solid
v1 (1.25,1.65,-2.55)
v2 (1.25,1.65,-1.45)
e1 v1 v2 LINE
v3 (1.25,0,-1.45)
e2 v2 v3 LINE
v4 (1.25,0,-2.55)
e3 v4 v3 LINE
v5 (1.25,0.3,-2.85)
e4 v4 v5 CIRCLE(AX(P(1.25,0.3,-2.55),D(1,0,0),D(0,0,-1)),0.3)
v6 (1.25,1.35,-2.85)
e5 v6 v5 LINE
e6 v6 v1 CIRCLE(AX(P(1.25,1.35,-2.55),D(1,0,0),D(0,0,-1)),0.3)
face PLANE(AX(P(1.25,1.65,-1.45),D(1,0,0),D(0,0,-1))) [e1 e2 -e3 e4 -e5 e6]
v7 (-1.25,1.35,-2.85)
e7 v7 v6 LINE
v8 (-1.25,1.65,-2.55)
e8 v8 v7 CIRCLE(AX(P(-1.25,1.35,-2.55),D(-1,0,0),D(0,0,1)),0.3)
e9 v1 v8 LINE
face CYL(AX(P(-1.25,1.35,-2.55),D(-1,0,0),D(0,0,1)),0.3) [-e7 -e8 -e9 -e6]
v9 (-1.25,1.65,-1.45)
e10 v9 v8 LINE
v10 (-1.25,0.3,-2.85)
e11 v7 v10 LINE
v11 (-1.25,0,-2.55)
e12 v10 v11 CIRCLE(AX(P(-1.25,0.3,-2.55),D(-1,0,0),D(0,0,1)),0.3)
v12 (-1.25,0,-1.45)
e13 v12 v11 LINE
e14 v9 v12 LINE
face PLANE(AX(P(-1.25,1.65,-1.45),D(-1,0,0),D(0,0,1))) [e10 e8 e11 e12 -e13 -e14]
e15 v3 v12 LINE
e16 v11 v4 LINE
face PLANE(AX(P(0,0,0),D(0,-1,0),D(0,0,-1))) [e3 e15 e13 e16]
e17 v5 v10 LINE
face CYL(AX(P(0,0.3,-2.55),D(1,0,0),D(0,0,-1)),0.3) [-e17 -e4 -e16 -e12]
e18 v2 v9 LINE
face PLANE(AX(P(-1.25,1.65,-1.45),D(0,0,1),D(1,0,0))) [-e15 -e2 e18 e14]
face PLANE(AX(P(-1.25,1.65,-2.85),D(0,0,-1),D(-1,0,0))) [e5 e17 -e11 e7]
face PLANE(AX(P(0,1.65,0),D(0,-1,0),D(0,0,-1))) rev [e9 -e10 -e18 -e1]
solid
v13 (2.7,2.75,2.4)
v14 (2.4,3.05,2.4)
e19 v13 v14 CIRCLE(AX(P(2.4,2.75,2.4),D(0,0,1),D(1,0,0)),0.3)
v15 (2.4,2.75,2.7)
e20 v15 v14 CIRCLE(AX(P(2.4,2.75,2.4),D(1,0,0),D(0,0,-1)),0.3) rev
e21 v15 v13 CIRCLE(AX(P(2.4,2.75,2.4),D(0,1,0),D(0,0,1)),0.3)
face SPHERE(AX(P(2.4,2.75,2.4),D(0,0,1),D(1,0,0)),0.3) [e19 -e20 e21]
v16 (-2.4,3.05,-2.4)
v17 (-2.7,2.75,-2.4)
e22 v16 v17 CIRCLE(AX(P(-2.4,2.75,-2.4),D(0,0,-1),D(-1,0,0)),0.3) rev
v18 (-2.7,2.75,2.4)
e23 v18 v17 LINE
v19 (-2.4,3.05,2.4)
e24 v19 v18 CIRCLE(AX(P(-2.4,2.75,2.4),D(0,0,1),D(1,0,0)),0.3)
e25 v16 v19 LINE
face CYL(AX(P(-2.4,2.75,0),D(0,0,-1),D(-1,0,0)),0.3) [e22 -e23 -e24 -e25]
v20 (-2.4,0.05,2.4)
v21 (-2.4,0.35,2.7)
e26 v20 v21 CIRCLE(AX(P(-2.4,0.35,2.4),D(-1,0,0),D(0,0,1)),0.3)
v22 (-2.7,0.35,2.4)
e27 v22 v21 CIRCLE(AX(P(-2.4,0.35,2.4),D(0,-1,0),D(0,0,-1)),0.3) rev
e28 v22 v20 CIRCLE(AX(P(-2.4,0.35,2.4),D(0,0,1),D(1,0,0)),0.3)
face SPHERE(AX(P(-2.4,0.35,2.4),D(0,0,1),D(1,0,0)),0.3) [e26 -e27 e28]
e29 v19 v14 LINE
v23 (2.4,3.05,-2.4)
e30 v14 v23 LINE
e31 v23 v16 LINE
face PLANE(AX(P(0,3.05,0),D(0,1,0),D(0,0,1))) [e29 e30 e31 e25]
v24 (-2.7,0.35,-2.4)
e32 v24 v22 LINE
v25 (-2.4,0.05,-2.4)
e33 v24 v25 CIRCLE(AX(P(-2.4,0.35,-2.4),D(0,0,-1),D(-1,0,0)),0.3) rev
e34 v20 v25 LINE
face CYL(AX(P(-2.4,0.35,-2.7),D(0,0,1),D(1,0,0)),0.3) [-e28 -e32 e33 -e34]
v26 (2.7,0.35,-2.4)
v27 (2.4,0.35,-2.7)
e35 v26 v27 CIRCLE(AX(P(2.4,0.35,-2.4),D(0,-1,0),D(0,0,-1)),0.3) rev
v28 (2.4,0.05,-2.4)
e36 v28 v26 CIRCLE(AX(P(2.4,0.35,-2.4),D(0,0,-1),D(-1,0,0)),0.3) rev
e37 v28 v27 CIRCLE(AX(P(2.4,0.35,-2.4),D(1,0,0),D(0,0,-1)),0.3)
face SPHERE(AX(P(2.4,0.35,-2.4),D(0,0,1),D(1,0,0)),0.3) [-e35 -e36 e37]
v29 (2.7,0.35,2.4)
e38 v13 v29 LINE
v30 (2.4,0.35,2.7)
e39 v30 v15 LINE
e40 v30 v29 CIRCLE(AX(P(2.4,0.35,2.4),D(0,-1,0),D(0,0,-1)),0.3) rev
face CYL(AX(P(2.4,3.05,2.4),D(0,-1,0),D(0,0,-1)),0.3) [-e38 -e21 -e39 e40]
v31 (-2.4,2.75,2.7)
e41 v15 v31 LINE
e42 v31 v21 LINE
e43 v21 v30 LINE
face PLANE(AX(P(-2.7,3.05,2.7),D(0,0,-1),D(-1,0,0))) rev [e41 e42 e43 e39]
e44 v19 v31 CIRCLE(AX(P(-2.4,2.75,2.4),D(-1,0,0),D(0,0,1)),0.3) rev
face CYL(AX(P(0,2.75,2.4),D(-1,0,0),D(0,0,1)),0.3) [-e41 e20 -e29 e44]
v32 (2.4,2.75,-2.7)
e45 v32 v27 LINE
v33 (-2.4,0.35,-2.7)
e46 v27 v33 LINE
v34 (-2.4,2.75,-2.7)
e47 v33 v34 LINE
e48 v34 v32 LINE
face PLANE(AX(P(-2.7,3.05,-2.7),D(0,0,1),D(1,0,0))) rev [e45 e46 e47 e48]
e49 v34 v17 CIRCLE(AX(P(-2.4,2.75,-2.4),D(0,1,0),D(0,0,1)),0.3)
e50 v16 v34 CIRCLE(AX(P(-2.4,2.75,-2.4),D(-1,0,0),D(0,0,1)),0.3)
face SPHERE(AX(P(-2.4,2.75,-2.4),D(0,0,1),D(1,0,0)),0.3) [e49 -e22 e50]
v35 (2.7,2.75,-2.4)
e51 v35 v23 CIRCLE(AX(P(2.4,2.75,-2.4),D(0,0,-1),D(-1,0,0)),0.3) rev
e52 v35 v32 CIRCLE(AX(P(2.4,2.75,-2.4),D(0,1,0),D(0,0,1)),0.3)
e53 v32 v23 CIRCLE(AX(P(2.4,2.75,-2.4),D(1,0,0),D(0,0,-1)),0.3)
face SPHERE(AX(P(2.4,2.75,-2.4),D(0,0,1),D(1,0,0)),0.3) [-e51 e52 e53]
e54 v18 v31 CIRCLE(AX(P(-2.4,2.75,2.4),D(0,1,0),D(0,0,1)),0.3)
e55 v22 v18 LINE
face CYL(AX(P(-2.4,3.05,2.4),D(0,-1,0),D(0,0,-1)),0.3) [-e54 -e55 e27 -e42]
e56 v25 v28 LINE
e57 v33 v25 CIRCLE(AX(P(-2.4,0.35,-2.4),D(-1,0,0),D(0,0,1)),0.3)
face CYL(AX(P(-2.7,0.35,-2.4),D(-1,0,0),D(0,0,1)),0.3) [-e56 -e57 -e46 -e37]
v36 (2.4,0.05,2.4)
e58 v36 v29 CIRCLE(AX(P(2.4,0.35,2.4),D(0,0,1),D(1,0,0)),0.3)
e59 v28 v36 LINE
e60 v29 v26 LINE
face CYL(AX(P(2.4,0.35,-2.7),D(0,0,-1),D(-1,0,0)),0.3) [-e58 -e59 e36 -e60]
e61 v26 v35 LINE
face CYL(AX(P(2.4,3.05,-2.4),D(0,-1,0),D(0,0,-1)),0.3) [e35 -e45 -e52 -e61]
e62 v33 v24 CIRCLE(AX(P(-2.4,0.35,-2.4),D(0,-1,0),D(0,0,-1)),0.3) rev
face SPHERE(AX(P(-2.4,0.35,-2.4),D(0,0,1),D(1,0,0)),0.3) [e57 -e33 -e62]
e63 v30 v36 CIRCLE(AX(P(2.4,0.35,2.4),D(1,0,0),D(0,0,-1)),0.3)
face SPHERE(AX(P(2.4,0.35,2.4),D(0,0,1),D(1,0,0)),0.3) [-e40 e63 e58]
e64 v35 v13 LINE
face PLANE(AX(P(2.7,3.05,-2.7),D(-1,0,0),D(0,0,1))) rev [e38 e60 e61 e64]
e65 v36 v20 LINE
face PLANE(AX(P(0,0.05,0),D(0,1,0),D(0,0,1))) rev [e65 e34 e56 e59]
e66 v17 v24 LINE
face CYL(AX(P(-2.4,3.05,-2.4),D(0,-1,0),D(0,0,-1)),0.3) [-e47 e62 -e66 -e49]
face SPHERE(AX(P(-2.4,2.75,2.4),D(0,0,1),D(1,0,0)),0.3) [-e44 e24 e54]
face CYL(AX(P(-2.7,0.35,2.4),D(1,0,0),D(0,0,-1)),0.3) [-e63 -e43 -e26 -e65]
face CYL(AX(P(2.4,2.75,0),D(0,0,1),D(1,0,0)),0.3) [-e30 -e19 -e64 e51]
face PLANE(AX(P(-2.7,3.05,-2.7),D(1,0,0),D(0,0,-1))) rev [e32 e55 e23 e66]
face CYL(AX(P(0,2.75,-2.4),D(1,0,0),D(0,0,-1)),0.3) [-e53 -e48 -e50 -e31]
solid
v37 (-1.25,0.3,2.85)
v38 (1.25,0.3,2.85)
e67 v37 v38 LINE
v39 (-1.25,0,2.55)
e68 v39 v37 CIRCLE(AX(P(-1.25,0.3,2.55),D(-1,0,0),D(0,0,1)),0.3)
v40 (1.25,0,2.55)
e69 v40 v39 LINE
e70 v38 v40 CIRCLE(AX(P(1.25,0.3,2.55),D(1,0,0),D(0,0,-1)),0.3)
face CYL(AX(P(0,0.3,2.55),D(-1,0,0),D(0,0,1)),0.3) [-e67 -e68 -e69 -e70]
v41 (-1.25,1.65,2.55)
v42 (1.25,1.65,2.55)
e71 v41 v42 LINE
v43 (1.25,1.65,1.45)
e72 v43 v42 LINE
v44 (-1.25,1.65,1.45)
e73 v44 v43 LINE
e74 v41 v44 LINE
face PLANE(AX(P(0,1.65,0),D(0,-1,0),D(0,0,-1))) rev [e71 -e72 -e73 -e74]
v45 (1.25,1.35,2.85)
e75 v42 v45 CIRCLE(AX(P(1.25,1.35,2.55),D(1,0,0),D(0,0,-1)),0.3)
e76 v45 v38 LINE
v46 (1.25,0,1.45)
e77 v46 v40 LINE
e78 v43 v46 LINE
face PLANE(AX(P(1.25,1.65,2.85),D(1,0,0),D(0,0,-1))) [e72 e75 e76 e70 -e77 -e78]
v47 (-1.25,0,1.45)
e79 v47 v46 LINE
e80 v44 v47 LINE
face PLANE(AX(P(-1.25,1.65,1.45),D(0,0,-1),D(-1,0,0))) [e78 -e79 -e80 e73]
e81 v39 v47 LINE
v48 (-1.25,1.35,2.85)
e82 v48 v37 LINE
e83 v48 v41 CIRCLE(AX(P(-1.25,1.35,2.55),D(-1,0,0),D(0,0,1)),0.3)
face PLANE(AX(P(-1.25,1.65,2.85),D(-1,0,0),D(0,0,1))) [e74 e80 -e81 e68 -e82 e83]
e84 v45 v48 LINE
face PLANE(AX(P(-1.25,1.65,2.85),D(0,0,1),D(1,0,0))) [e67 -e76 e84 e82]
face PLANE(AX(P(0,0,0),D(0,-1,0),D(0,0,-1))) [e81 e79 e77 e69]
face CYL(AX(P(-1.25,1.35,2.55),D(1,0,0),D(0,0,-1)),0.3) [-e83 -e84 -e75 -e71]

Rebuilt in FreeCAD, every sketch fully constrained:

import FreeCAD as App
import Part
import Sketcher
from FreeCAD import Vector


def edges_at(feature, points):
    """Names of the edges that pass closest to the given points."""
    edges = feature.Shape.Edges
    near = lambda p: min(range(len(edges)), key=lambda i: edges[i].distToShape(Part.Vertex(*p))[0])
    return sorted({f"Edge{near(p) + 1}" for p in points})


def add_polygon(sketch, points):
    """Adds a closed chain of lines whose ends are joined by coincident constraints."""
    first, n = sketch.GeometryCount, len(points)
    for a, b in zip(points, points[1:] + points[:1]):
        sketch.addGeometry(Part.LineSegment(App.Vector(*a, 0), App.Vector(*b, 0)), False)
    for i in range(n):
        sketch.addConstraint(Sketcher.Constraint("Coincident", first + i, 2, first + (i + 1) % n, 1))

doc = App.newDocument("Part")
params = doc.addObject("Spreadsheet::Sheet", "Params")
for row, (alias, value) in enumerate([
    ("sketch1_width", "5.4 mm"),
    ("pad1_length", "3 mm"),
    ("fillet_radius", "0.3 mm"),
    ("sketch2_width", "2.5 mm"),
    ("sketch2_height", "1.4 mm"),
    ("pad2_length", "0.05 mm"),
    ("pad2_length2", "1.6 mm"),
    ("fillet2_radius", "0.3 mm"),
    ("sketch3_width", "2.5 mm"),
    ("sketch3_height", "1.4 mm"),
    ("pad3_length", "0.05 mm"),
    ("pad3_length2", "1.6 mm"),
    ("fillet3_radius", "0.3 mm"),
], start=1):
    params.set(f"A{row}", alias)
    params.set(f"B{row}", "=" + value)
    params.setAlias(f"B{row}", alias)

body = doc.addObject("PartDesign::Body", "Body")

# Sketch on XZ plane
sketch1 = body.newObject("Sketcher::SketchObject", "Sketch")
sketch1.AttachmentSupport = (doc.getObject("XZ_Plane"), [""])
sketch1.MapMode = "FlatFace"
sketch1.AttachmentOffset = App.Placement(Vector(0, 0, -0.05), App.Rotation())
add_polygon(sketch1, [(-2.7, -2.7), (-2.7, 2.7), (2.7, 2.7), (2.7, -2.7)])  # lines 0-3
sketch1.addConstraint([
    Sketcher.Constraint("Vertical", 0),
    Sketcher.Constraint("Horizontal", 1),
    Sketcher.Constraint("Vertical", 2),
    Sketcher.Constraint("Horizontal", 3),
    Sketcher.Constraint("Symmetric", 0, 2, 2, 2, -1, 1),
    Sketcher.Constraint("Equal", 3, 0),
    Sketcher.Constraint("DistanceX", 1, 1, 1, 2, 5.4),
])
sketch1.setExpression("Constraints[10]", "Params.sketch1_width")
pad1 = body.newObject("PartDesign::Pad", "Pad")
pad1.Profile = sketch1
pad1.setExpression("Length", "Params.pad1_length")
pad1.Reversed = True
doc.recompute()

fillet = body.newObject("PartDesign::Fillet", "Fillet")
fillet.Base = (pad1, ["Edge1"])
fillet.UseAllEdges = True
fillet.setExpression("Radius", "Params.fillet_radius")
body2 = doc.addObject("PartDesign::Body", "Body001")

# Sketch on XZ plane
sketch2 = body2.newObject("Sketcher::SketchObject", "Sketch001")
sketch2.AttachmentSupport = (doc.getObject("XZ_Plane001"), [""])
sketch2.MapMode = "FlatFace"
sketch2.AttachmentOffset = App.Placement(Vector(0, 0, -0.05), App.Rotation())
add_polygon(sketch2, [(-1.25, 2.85), (-1.25, 1.45), (1.25, 1.45), (1.25, 2.85)])  # lines 0-3
sketch2.addConstraint([
    Sketcher.Constraint("Vertical", 0),
    Sketcher.Constraint("Horizontal", 1),
    Sketcher.Constraint("Vertical", 2),
    Sketcher.Constraint("Horizontal", 3),
    Sketcher.Constraint("DistanceX", 1, 1, 1, 2, 2.5),
    Sketcher.Constraint("DistanceY", 0, 2, 0, 1, 1.4),
    Sketcher.Constraint("DistanceX", 0, 2, -1, 1, 1.25),
    Sketcher.Constraint("DistanceY", -1, 1, 0, 2, 1.45),
])
sketch2.setExpression("Constraints[8]", "Params.sketch2_width")
sketch2.setExpression("Constraints[9]", "Params.sketch2_height")
pad2 = body2.newObject("PartDesign::Pad", "Pad001")
pad2.Profile = sketch2
pad2.Type = "TwoLengths"
pad2.setExpression("Length", "Params.pad2_length")
pad2.setExpression("Length2", "Params.pad2_length2")
doc.recompute()

fillet2 = body2.newObject("PartDesign::Fillet", "Fillet001")
fillet2.Base = (pad2, edges_at(pad2, [(0, 1.65, 2.85), (0, 0, 2.85)]))
fillet2.setExpression("Radius", "Params.fillet2_radius")
body3 = doc.addObject("PartDesign::Body", "Body002")

# Sketch on XZ plane
sketch3 = body3.newObject("Sketcher::SketchObject", "Sketch002")
sketch3.AttachmentSupport = (doc.getObject("XZ_Plane002"), [""])
sketch3.MapMode = "FlatFace"
sketch3.AttachmentOffset = App.Placement(Vector(0, 0, -0.05), App.Rotation())
add_polygon(sketch3, [(-1.25, -1.45), (-1.25, -2.85), (1.25, -2.85), (1.25, -1.45)])  # lines 0-3
sketch3.addConstraint([
    Sketcher.Constraint("Vertical", 0),
    Sketcher.Constraint("Horizontal", 1),
    Sketcher.Constraint("Vertical", 2),
    Sketcher.Constraint("Horizontal", 3),
    Sketcher.Constraint("DistanceX", 1, 1, 1, 2, 2.5),
    Sketcher.Constraint("DistanceY", 0, 2, 0, 1, 1.4),
    Sketcher.Constraint("DistanceX", 0, 2, -1, 1, 1.25),
    Sketcher.Constraint("DistanceY", 0, 2, -1, 1, 2.85),
])
sketch3.setExpression("Constraints[8]", "Params.sketch3_width")
sketch3.setExpression("Constraints[9]", "Params.sketch3_height")
pad3 = body3.newObject("PartDesign::Pad", "Pad002")
pad3.Profile = sketch3
pad3.Type = "TwoLengths"
pad3.setExpression("Length", "Params.pad3_length")
pad3.setExpression("Length2", "Params.pad3_length2")
doc.recompute()

fillet3 = body3.newObject("PartDesign::Fillet", "Fillet002")
fillet3.Base = (pad3, edges_at(pad3, [(0, 0, -2.85), (0, 1.65, -2.85)]))
fillet3.setExpression("Radius", "Params.fillet3_radius")

doc.recompute()
